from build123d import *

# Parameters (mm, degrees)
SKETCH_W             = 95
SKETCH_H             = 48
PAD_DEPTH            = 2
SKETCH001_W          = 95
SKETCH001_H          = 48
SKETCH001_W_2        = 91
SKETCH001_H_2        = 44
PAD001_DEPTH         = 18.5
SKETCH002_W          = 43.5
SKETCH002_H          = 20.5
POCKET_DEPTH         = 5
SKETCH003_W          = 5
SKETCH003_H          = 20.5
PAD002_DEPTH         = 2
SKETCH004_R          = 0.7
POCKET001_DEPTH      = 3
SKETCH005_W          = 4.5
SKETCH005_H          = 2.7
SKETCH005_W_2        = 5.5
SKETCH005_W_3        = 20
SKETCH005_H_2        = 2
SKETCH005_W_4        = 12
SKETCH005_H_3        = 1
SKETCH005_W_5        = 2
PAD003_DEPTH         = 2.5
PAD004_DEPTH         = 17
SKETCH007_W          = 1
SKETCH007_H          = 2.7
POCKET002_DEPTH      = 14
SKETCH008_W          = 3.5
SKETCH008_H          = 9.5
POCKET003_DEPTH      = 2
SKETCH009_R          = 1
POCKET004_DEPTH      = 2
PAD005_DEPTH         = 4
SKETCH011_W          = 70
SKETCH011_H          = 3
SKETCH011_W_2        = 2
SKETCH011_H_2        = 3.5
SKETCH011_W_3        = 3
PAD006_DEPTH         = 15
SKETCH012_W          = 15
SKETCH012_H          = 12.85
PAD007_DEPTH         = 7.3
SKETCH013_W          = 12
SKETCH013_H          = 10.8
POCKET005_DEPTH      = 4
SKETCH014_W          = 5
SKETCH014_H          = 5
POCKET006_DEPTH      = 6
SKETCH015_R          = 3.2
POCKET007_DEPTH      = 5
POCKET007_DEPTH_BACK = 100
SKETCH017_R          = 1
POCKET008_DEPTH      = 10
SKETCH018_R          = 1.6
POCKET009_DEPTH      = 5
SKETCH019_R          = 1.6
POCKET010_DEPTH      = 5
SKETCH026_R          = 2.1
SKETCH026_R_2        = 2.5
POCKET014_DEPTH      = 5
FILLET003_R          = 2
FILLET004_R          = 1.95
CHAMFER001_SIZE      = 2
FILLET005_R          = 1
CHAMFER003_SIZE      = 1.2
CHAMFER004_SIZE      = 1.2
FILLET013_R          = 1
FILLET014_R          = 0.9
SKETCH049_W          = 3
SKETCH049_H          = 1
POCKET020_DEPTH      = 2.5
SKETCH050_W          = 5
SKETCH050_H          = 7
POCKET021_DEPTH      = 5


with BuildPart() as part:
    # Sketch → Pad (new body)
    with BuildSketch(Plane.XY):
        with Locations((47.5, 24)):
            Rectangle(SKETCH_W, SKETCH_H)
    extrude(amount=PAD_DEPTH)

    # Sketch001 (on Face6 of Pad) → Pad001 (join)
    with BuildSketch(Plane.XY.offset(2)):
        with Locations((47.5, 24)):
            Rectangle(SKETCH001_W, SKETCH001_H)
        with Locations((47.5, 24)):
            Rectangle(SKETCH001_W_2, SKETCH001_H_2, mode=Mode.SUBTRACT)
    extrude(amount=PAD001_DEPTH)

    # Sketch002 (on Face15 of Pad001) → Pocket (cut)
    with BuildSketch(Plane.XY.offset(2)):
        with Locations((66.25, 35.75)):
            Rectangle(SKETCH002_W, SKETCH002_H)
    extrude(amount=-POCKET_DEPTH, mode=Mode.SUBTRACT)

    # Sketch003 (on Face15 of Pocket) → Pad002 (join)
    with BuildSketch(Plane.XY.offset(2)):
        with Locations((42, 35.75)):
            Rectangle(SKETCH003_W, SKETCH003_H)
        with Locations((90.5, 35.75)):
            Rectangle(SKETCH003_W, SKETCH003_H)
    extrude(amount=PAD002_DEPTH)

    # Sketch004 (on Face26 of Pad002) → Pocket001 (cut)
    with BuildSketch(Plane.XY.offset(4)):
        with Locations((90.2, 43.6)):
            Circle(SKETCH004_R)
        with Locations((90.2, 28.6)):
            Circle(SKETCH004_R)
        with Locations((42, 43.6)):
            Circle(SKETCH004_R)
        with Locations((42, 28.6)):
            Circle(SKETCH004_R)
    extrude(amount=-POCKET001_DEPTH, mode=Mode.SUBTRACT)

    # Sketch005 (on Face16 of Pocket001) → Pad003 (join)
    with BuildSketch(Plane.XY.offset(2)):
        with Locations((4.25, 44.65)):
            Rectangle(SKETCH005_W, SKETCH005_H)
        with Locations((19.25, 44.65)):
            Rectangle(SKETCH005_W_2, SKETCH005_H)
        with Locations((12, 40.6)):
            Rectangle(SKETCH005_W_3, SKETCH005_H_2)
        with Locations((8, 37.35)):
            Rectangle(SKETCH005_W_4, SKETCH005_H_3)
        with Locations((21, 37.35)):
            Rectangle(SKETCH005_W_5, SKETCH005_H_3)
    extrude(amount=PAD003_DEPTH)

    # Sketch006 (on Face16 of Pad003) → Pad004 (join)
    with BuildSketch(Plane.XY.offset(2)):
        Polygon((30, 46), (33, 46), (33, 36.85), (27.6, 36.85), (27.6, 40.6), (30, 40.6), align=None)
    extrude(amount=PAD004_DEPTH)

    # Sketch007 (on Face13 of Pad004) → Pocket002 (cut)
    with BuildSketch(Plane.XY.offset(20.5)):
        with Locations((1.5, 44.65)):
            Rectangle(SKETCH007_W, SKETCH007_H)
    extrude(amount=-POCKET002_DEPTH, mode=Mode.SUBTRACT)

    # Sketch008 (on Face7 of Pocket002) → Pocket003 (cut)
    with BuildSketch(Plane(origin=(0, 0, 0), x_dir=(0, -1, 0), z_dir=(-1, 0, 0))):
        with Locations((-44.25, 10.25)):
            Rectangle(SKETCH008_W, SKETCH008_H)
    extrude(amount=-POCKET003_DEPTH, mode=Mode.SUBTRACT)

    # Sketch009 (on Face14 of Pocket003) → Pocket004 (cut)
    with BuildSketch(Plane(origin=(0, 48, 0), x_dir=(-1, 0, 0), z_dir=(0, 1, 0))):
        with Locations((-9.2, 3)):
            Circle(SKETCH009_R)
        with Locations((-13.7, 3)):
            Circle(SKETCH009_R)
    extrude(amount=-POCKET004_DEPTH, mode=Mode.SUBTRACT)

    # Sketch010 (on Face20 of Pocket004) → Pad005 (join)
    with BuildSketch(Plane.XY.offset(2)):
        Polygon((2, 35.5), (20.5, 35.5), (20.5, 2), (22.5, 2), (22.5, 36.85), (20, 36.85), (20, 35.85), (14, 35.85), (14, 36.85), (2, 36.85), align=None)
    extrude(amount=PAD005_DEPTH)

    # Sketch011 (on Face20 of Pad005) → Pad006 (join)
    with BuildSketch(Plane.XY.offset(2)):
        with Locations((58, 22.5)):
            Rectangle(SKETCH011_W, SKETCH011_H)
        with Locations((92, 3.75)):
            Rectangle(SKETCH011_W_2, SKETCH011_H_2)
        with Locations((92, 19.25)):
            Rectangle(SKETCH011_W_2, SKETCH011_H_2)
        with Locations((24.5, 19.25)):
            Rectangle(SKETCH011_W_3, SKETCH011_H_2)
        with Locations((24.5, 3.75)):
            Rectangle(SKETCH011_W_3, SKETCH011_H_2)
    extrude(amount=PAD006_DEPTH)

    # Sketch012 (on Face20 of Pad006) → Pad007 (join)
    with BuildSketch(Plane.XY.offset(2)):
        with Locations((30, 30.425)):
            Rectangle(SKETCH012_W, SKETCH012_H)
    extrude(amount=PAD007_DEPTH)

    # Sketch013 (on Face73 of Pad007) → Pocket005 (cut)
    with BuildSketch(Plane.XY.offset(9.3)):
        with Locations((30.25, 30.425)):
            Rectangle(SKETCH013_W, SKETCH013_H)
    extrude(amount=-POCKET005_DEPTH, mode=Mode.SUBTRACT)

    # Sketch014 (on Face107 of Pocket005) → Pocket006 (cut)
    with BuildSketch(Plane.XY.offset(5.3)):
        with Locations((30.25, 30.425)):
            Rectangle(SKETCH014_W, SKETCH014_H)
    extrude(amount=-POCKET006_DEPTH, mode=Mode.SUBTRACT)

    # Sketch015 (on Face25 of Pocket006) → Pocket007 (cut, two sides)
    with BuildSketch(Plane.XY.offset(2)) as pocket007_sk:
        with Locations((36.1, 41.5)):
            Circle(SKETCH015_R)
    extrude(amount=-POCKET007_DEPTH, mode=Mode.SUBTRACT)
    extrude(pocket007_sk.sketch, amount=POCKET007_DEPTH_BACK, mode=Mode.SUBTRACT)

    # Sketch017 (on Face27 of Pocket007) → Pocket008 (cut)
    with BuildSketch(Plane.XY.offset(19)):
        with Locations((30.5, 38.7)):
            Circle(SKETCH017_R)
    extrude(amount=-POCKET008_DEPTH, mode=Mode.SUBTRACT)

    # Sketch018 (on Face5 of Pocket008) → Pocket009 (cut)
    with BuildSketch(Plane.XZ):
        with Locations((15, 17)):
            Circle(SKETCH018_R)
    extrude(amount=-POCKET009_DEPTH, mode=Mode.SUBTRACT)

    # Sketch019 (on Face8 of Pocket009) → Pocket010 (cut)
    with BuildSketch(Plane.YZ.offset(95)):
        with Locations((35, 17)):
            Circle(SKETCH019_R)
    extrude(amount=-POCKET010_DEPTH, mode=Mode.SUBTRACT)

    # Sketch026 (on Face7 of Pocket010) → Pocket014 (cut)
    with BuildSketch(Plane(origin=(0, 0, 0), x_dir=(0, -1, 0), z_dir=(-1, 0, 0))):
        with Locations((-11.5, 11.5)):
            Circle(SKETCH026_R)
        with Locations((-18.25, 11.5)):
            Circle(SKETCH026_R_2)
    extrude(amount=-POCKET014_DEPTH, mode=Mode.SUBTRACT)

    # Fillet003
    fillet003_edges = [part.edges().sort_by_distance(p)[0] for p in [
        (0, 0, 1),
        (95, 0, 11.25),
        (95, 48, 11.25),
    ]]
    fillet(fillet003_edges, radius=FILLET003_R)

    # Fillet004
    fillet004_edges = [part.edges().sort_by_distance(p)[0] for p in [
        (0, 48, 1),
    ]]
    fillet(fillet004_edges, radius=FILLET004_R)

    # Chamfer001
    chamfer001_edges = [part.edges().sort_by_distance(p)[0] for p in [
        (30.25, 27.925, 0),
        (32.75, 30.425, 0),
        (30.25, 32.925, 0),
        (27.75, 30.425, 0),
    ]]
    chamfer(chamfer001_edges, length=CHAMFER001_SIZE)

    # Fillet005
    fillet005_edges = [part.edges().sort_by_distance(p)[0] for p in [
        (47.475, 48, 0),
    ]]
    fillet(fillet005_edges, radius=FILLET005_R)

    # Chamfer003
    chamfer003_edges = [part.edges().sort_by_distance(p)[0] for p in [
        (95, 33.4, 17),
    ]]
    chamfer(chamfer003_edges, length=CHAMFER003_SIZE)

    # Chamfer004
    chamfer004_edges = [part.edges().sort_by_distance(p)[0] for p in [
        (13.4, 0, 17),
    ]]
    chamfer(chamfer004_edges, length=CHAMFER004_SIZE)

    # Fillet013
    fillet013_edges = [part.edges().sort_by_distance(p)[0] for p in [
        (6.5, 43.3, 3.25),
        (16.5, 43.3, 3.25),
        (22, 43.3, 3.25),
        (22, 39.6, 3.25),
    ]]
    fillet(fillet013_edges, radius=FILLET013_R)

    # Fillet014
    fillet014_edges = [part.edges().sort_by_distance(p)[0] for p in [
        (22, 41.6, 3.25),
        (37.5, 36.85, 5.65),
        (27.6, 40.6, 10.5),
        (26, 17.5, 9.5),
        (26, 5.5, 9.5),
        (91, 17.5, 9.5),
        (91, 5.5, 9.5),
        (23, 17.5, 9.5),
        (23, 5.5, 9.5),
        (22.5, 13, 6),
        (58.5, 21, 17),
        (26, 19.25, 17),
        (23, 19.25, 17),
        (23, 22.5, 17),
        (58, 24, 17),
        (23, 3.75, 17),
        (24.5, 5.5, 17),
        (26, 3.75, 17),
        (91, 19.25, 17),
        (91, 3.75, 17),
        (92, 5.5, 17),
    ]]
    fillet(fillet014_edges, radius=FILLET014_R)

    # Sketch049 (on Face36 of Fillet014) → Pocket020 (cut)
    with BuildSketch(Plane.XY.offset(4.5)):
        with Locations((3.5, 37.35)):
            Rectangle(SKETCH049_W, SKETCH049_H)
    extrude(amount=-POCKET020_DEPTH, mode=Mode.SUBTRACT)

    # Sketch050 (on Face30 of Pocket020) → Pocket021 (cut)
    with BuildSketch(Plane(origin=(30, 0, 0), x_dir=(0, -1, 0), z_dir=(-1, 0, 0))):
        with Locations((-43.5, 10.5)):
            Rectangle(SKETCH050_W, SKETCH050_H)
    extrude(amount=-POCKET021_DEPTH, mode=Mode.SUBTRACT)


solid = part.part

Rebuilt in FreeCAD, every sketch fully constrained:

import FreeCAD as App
import Part
import Sketcher
from FreeCAD import Vector
Q = App.Units.Quantity


def edges_at(feature, points):
    """Names of the edges that pass closest to the given points."""
    edges = feature.Shape.Edges
    near = lambda p: min(range(len(edges)), key=lambda i: edges[i].distToShape(Part.Vertex(*p))[0])
    return sorted({f"Edge{near(p) + 1}" for p in points})

doc = App.newDocument("Part")
body = doc.addObject("PartDesign::Body", "Body")

# Sketch on XY plane
sketch1 = body.newObject("Sketcher::SketchObject", "Sketch")
sketch1.AttachmentSupport = (doc.getObject("XY_Plane"), [""])
sketch1.MapMode = "FlatFace"
sketch1.addGeometry([
    Part.LineSegment(Vector(0, 48, 0), Vector(0, 0, 0)),
    Part.LineSegment(Vector(0, 0, 0), Vector(95, 0, 0)),
    Part.LineSegment(Vector(95, 0, 0), Vector(95, 48, 0)),
    Part.LineSegment(Vector(95, 48, 0), Vector(0, 48, 0)),
], False)
sketch1.addConstraint([
    Sketcher.Constraint("Coincident", 0, 2, 1, 1),
    Sketcher.Constraint("Coincident", 1, 2, 2, 1),
    Sketcher.Constraint("Coincident", 2, 2, 3, 1),
    Sketcher.Constraint("Coincident", 3, 2, 0, 1),
    Sketcher.Constraint("Vertical", 0),
    Sketcher.Constraint("Horizontal", 1),
    Sketcher.Constraint("Vertical", 2),
    Sketcher.Constraint("Horizontal", 3),
    Sketcher.Constraint("Coincident", 0, 2, -1, 1),
    Sketcher.Constraint("DistanceX", 1, 1, 1, 2, Q("95 mm")),
    Sketcher.Constraint("DistanceY", 0, 2, 0, 1, Q("48 mm")),
])
pad1 = body.newObject("PartDesign::Pad", "Pad")
pad1.Profile = sketch1
pad1.Length = 2

# Sketch on XY plane
sketch2 = body.newObject("Sketcher::SketchObject", "Sketch001")
sketch2.AttachmentSupport = (doc.getObject("XY_Plane"), [""])
sketch2.MapMode = "FlatFace"
sketch2.AttachmentOffset = App.Placement(Vector(0, 0, 2), App.Rotation())
sketch2.addGeometry([
    Part.LineSegment(Vector(0, 48, 0), Vector(0, 0, 0)),  # 0
    Part.LineSegment(Vector(0, 0, 0), Vector(95, 0, 0)),  # 1
    Part.LineSegment(Vector(95, 0, 0), Vector(95, 48, 0)),  # 2
    Part.LineSegment(Vector(95, 48, 0), Vector(0, 48, 0)),  # 3
    Part.LineSegment(Vector(93, 2, 0), Vector(2, 2, 0)),  # 4
    Part.LineSegment(Vector(2, 2, 0), Vector(2, 46, 0)),  # 5
    Part.LineSegment(Vector(2, 46, 0), Vector(93, 46, 0)),  # 6
    Part.LineSegment(Vector(93, 46, 0), Vector(93, 2, 0)),  # 7
], False)
sketch2.addConstraint([
    Sketcher.Constraint("Coincident", 0, 2, 1, 1),
    Sketcher.Constraint("Coincident", 1, 2, 2, 1),
    Sketcher.Constraint("Coincident", 2, 2, 3, 1),
    Sketcher.Constraint("Coincident", 3, 2, 0, 1),
    Sketcher.Constraint("Coincident", 4, 2, 5, 1),
    Sketcher.Constraint("Coincident", 5, 2, 6, 1),
    Sketcher.Constraint("Coincident", 6, 2, 7, 1),
    Sketcher.Constraint("Coincident", 7, 2, 4, 1),
    Sketcher.Constraint("Vertical", 0),
    Sketcher.Constraint("Horizontal", 1),
    Sketcher.Constraint("Vertical", 2),
    Sketcher.Constraint("Horizontal", 3),
    Sketcher.Constraint("Horizontal", 4),
    Sketcher.Constraint("Vertical", 5),
    Sketcher.Constraint("Horizontal", 6),
    Sketcher.Constraint("Vertical", 7),
    Sketcher.Constraint("Coincident", 0, 2, -1, 1),
    Sketcher.Constraint("DistanceX", 1, 1, 1, 2, Q("95 mm")),
    Sketcher.Constraint("DistanceX", 4, 2, 4, 1, Q("91 mm")),
    Sketcher.Constraint("DistanceY", 0, 2, 0, 1, Q("48 mm")),
    Sketcher.Constraint("DistanceY", 5, 1, 5, 2, Q("44 mm")),
    Sketcher.Constraint("DistanceX", -1, 1, 4, 2, Q("2 mm")),
    Sketcher.Constraint("DistanceY", -1, 1, 4, 2, Q("2 mm")),
])
pad2 = body.newObject("PartDesign::Pad", "Pad001")
pad2.Profile = sketch2
pad2.Length = 18.5

# Sketch on XY plane
sketch3 = body.newObject("Sketcher::SketchObject", "Sketch002")
sketch3.AttachmentSupport = (doc.getObject("XY_Plane"), [""])
sketch3.MapMode = "FlatFace"
sketch3.AttachmentOffset = App.Placement(Vector(0, 0, 2), App.Rotation())
sketch3.addGeometry([
    Part.LineSegment(Vector(44.5, 46, 0), Vector(44.5, 25.5, 0)),
    Part.LineSegment(Vector(44.5, 25.5, 0), Vector(88, 25.5, 0)),
    Part.LineSegment(Vector(88, 25.5, 0), Vector(88, 46, 0)),
    Part.LineSegment(Vector(88, 46, 0), Vector(44.5, 46, 0)),
], False)
sketch3.addConstraint([
    Sketcher.Constraint("Coincident", 0, 2, 1, 1),
    Sketcher.Constraint("Coincident", 1, 2, 2, 1),
    Sketcher.Constraint("Coincident", 2, 2, 3, 1),
    Sketcher.Constraint("Coincident", 3, 2, 0, 1),
    Sketcher.Constraint("Vertical", 0),
    Sketcher.Constraint("Horizontal", 1),
    Sketcher.Constraint("Vertical", 2),
    Sketcher.Constraint("Horizontal", 3),
    Sketcher.Constraint("DistanceX", 1, 1, 1, 2, Q("43.5 mm")),
    Sketcher.Constraint("DistanceY", 0, 2, 0, 1, Q("20.5 mm")),
    Sketcher.Constraint("DistanceX", -1, 1, 1, 2, Q("88 mm")),
    Sketcher.Constraint("DistanceY", -1, 1, 2, 2, Q("46 mm")),
])
pocket1 = body.newObject("PartDesign::Pocket", "Pocket")
pocket1.Profile = sketch3
pocket1.Length = 5

# Sketch on XY plane
sketch4 = body.newObject("Sketcher::SketchObject", "Sketch003")
sketch4.AttachmentSupport = (doc.getObject("XY_Plane"), [""])
sketch4.MapMode = "FlatFace"
sketch4.AttachmentOffset = App.Placement(Vector(0, 0, 2), App.Rotation())
sketch4.addGeometry([
    Part.LineSegment(Vector(39.5, 46, 0), Vector(39.5, 25.5, 0)),  # 0
    Part.LineSegment(Vector(39.5, 25.5, 0), Vector(44.5, 25.5, 0)),  # 1
    Part.LineSegment(Vector(44.5, 25.5, 0), Vector(44.5, 46, 0)),  # 2
    Part.LineSegment(Vector(44.5, 46, 0), Vector(39.5, 46, 0)),  # 3
    Part.LineSegment(Vector(88, 46, 0), Vector(88, 25.5, 0)),  # 4
    Part.LineSegment(Vector(88, 25.5, 0), Vector(93, 25.5, 0)),  # 5
    Part.LineSegment(Vector(93, 25.5, 0), Vector(93, 46, 0)),  # 6
    Part.LineSegment(Vector(93, 46, 0), Vector(88, 46, 0)),  # 7
], False)
sketch4.addConstraint([
    Sketcher.Constraint("Coincident", 0, 2, 1, 1),
    Sketcher.Constraint("Coincident", 1, 2, 2, 1),
    Sketcher.Constraint("Coincident", 2, 2, 3, 1),
    Sketcher.Constraint("Coincident", 3, 2, 0, 1),
    Sketcher.Constraint("Coincident", 4, 2, 5, 1),
    Sketcher.Constraint("Coincident", 5, 2, 6, 1),
    Sketcher.Constraint("Coincident", 6, 2, 7, 1),
    Sketcher.Constraint("Coincident", 7, 2, 4, 1),
    Sketcher.Constraint("Vertical", 0),
    Sketcher.Constraint("Horizontal", 1),
    Sketcher.Constraint("Vertical", 2),
    Sketcher.Constraint("Horizontal", 3),
    Sketcher.Constraint("Vertical", 4),
    Sketcher.Constraint("Horizontal", 5),
    Sketcher.Constraint("Vertical", 6),
    Sketcher.Constraint("Horizontal", 7),
    Sketcher.Constraint("Horizontal", 1, 2, 4, 2),
    Sketcher.Constraint("Horizontal", 3, 2, 6, 2),
    Sketcher.Constraint("Equal", 3, 5),
    Sketcher.Constraint("DistanceX", 1, 1, 1, 2, Q("5 mm")),
    Sketcher.Constraint("DistanceY", 0, 2, 0, 1, Q("20.5 mm")),
    Sketcher.Constraint("DistanceY", -1, 1, 2, 2, Q("46 mm")),
    Sketcher.Constraint("DistanceX", -1, 1, 4, 2, Q("88 mm")),
    Sketcher.Constraint("DistanceX", -1, 1, 0, 2, Q("39.5 mm")),
])
pad3 = body.newObject("PartDesign::Pad", "Pad002")
pad3.Profile = sketch4
pad3.Length = 2

# Sketch on XY plane
sketch5 = body.newObject("Sketcher::SketchObject", "Sketch004")
sketch5.AttachmentSupport = (doc.getObject("XY_Plane"), [""])
sketch5.MapMode = "FlatFace"
sketch5.AttachmentOffset = App.Placement(Vector(0, 0, 4), App.Rotation())
sketch5.addGeometry([
    Part.Circle(Vector(90.2, 43.6, 0), Vector(0, 0, 1), 0.7),
    Part.Circle(Vector(90.2, 28.6, 0), Vector(0, 0, 1), 0.7),
    Part.Circle(Vector(42, 43.6, 0), Vector(0, 0, 1), 0.7),
    Part.Circle(Vector(42, 28.6, 0), Vector(0, 0, 1), 0.7),
], False)
sketch5.addConstraint([
    Sketcher.Constraint("Equal", 0, 1),
    Sketcher.Constraint("Equal", 1, 2),
    Sketcher.Constraint("Equal", 2, 3),
    Sketcher.Constraint("Horizontal", 0, 3, 2, 3),
    Sketcher.Constraint("Horizontal", 1, 3, 3, 3),
    Sketcher.Constraint("Vertical", 0, 3, 1, 3),
    Sketcher.Constraint("Vertical", 2, 3, 3, 3),
    Sketcher.Constraint("Diameter", 0, Q("1.4 mm")),
    Sketcher.Constraint("DistanceX", -1, 1, 2, 3, Q("42 mm")),
    Sketcher.Constraint("DistanceY", 1, 3, 0, 3, Q("15 mm")),
    Sketcher.Constraint("DistanceX", -1, 1, 0, 3, Q("90.2 mm")),
    Sketcher.Constraint("DistanceY", -1, 1, 0, 3, Q("43.6 mm")),
])
pocket2 = body.newObject("PartDesign::Pocket", "Pocket001")
pocket2.Profile = sketch5
pocket2.Length = 3

# Sketch on XY plane
sketch6 = body.newObject("Sketcher::SketchObject", "Sketch005")
sketch6.AttachmentSupport = (doc.getObject("XY_Plane"), [""])
sketch6.MapMode = "FlatFace"
sketch6.AttachmentOffset = App.Placement(Vector(0, 0, 2), App.Rotation())
sketch6.addGeometry([
    Part.LineSegment(Vector(2, 46, 0), Vector(2, 43.3, 0)),  # 0
    Part.LineSegment(Vector(2, 43.3, 0), Vector(6.5, 43.3, 0)),  # 1
    Part.LineSegment(Vector(6.5, 43.3, 0), Vector(6.5, 46, 0)),  # 2
    Part.LineSegment(Vector(6.5, 46, 0), Vector(2, 46, 0)),  # 3
    Part.LineSegment(Vector(16.5, 46, 0), Vector(16.5, 43.3, 0)),  # 4
    Part.LineSegment(Vector(16.5, 43.3, 0), Vector(22, 43.3, 0)),  # 5
    Part.LineSegment(Vector(22, 43.3, 0), Vector(22, 46, 0)),  # 6
    Part.LineSegment(Vector(22, 46, 0), Vector(16.5, 46, 0)),  # 7
    Part.LineSegment(Vector(2, 41.6, 0), Vector(2, 39.6, 0)),  # 8
    Part.LineSegment(Vector(2, 39.6, 0), Vector(22, 39.6, 0)),  # 9
    Part.LineSegment(Vector(22, 39.6, 0), Vector(22, 41.6, 0)),  # 10
    Part.LineSegment(Vector(22, 41.6, 0), Vector(2, 41.6, 0)),  # 11
    Part.LineSegment(Vector(2, 37.85, 0), Vector(2, 36.85, 0)),  # 12
    Part.LineSegment(Vector(2, 36.85, 0), Vector(14, 36.85, 0)),  # 13
    Part.LineSegment(Vector(14, 36.85, 0), Vector(14, 37.85, 0)),  # 14
    Part.LineSegment(Vector(14, 37.85, 0), Vector(2, 37.85, 0)),  # 15
    Part.LineSegment(Vector(20, 37.85, 0), Vector(20, 36.85, 0)),  # 16
    Part.LineSegment(Vector(20, 36.85, 0), Vector(22, 36.85, 0)),  # 17
    Part.LineSegment(Vector(22, 36.85, 0), Vector(22, 37.85, 0)),  # 18
    Part.LineSegment(Vector(22, 37.85, 0), Vector(20, 37.85, 0)),  # 19
], False)
sketch6.addConstraint([
    Sketcher.Constraint("Coincident", 0, 2, 1, 1),
    Sketcher.Constraint("Coincident", 1, 2, 2, 1),
    Sketcher.Constraint("Coincident", 2, 2, 3, 1),
    Sketcher.Constraint("Coincident", 3, 2, 0, 1),
    Sketcher.Constraint("Coincident", 4, 2, 5, 1),
    Sketcher.Constraint("Coincident", 5, 2, 6, 1),
    Sketcher.Constraint("Coincident", 6, 2, 7, 1),
    Sketcher.Constraint("Coincident", 7, 2, 4, 1),
    Sketcher.Constraint("Coincident", 8, 2, 9, 1),
    Sketcher.Constraint("Coincident", 9, 2, 10, 1),
    Sketcher.Constraint("Coincident", 10, 2, 11, 1),
    Sketcher.Constraint("Coincident", 11, 2, 8, 1),
    Sketcher.Constraint("Coincident", 12, 2, 13, 1),
    Sketcher.Constraint("Coincident", 13, 2, 14, 1),
    Sketcher.Constraint("Coincident", 14, 2, 15, 1),
    Sketcher.Constraint("Coincident", 15, 2, 12, 1),
    Sketcher.Constraint("Coincident", 16, 2, 17, 1),
    Sketcher.Constraint("Coincident", 17, 2, 18, 1),
    Sketcher.Constraint("Coincident", 18, 2, 19, 1),
    Sketcher.Constraint("Coincident", 19, 2, 16, 1),
    Sketcher.Constraint("Vertical", 0),
    Sketcher.Constraint("Horizontal", 1),
    Sketcher.Constraint("Vertical", 2),
    Sketcher.Constraint("Horizontal", 3),
    Sketcher.Constraint("Vertical", 4),
    Sketcher.Constraint("Horizontal", 5),
    Sketcher.Constraint("Vertical", 6),
    Sketcher.Constraint("Horizontal", 7),
    Sketcher.Constraint("Vertical", 8),
    Sketcher.Constraint("Horizontal", 9),
    Sketcher.Constraint("Vertical", 10),
    Sketcher.Constraint("Horizontal", 11),
    Sketcher.Constraint("Vertical", 12),
    Sketcher.Constraint("Horizontal", 13),
    Sketcher.Constraint("Vertical", 14),
    Sketcher.Constraint("Horizontal", 15),
    Sketcher.Constraint("Vertical", 16),
    Sketcher.Constraint("Horizontal", 17),
    Sketcher.Constraint("Vertical", 18),
    Sketcher.Constraint("Horizontal", 19),
    Sketcher.Constraint("Horizontal", 1, 2, 4, 2),
    Sketcher.Constraint("Horizontal", 3, 2, 6, 2),
    Sketcher.Constraint("Horizontal", 13, 2, 16, 2),
    Sketcher.Constraint("Horizontal", 15, 2, 18, 2),
    Sketcher.Constraint("Vertical", 3, 2, 8, 2),
    Sketcher.Constraint("Vertical", 6, 2, 9, 2),
    Sketcher.Constraint("Vertical", 11, 2, 12, 2),
    Sketcher.Constraint("Vertical", 10, 2, 17, 2),
    Sketcher.Constraint("Equal", 19, 8),
    Sketcher.Constraint("DistanceX", 9, 1, 9, 2, Q("20 mm")),
    Sketcher.Constraint("DistanceX", 13, 1, 13, 2, Q("12 mm")),
    Sketcher.Constraint("DistanceX", 17, 1, 17, 2, Q("2 mm")),
    Sketcher.Constraint("DistanceY", 12, 2, 12, 1, Q("1 mm")),
    Sketcher.Constraint("DistanceX", 1, 1, 1, 2, Q("4.5 mm")),
    Sketcher.Constraint("DistanceX", 5, 1, 5, 2, Q("5.5 mm")),
    Sketcher.Constraint("DistanceY", 0, 2, 0, 1, Q("2.7 mm")),
    Sketcher.Constraint("DistanceX", -1, 1, 0, 2, Q("2 mm")),
    Sketcher.Constraint("DistanceY", -1, 1, 2, 2, Q("46 mm")),
    Sketcher.Constraint("DistanceY", -1, 1, 8, 2, Q("39.6 mm")),
    Sketcher.Constraint("DistanceY", -1, 1, 12, 2, Q("36.85 mm")),
])
pad4 = body.newObject("PartDesign::Pad", "Pad003")
pad4.Profile = sketch6
pad4.Length = 2.5

# Sketch on XY plane
sketch7 = body.newObject("Sketcher::SketchObject", "Sketch006")
sketch7.AttachmentSupport = (doc.getObject("XY_Plane"), [""])
sketch7.MapMode = "FlatFace"
sketch7.AttachmentOffset = App.Placement(Vector(0, 0, 2), App.Rotation())
sketch7.addGeometry([
    Part.LineSegment(Vector(33, 46, 0), Vector(30, 46, 0)),  # 0
    Part.LineSegment(Vector(30, 46, 0), Vector(30, 40.6, 0)),  # 1
    Part.LineSegment(Vector(30, 40.6, 0), Vector(27.6, 40.6, 0)),  # 2
    Part.LineSegment(Vector(27.6, 40.6, 0), Vector(27.6, 36.85, 0)),  # 3
    Part.LineSegment(Vector(27.6, 36.85, 0), Vector(33, 36.85, 0)),  # 4
    Part.LineSegment(Vector(33, 36.85, 0), Vector(33, 46, 0)),  # 5
], False)
sketch7.addConstraint([
    Sketcher.Constraint("Coincident", 0, 2, 1, 1),
    Sketcher.Constraint("Coincident", 1, 2, 2, 1),
    Sketcher.Constraint("Coincident", 2, 2, 3, 1),
    Sketcher.Constraint("Coincident", 3, 2, 4, 1),
    Sketcher.Constraint("Coincident", 4, 2, 5, 1),
    Sketcher.Constraint("Coincident", 5, 2, 0, 1),
    Sketcher.Constraint("Horizontal", 0),
    Sketcher.Constraint("Vertical", 1),
    Sketcher.Constraint("Horizontal", 2),
    Sketcher.Constraint("Vertical", 3),
    Sketcher.Constraint("Horizontal", 4),
    Sketcher.Constraint("Vertical", 5),
    Sketcher.Constraint("Equal", 4, 1),
    Sketcher.Constraint("DistanceX", 0, 2, 0, 1, Q("3 mm")),
    Sketcher.Constraint("DistanceX", 2, 2, 2, 1, Q("2.4 mm")),
    Sketcher.Constraint("DistanceX", -1, 1, 0, 2, Q("30 mm")),
    Sketcher.Constraint("DistanceY", -1, 1, 0, 2, Q("46 mm")),
    Sketcher.Constraint("DistanceY", 3, 2, 3, 1, Q("3.75 mm")),
])
pad5 = body.newObject("PartDesign::Pad", "Pad004")
pad5.Profile = sketch7
pad5.Length = 17

# Sketch on XY plane
sketch8 = body.newObject("Sketcher::SketchObject", "Sketch007")
sketch8.AttachmentSupport = (doc.getObject("XY_Plane"), [""])
sketch8.MapMode = "FlatFace"
sketch8.AttachmentOffset = App.Placement(Vector(0, 0, 20.5), App.Rotation())
sketch8.addGeometry([
    Part.LineSegment(Vector(1, 46, 0), Vector(1, 43.3, 0)),
    Part.LineSegment(Vector(1, 43.3, 0), Vector(2, 43.3, 0)),
    Part.LineSegment(Vector(2, 43.3, 0), Vector(2, 46, 0)),
    Part.LineSegment(Vector(2, 46, 0), Vector(1, 46, 0)),
], False)
sketch8.addConstraint([
    Sketcher.Constraint("Coincident", 0, 2, 1, 1),
    Sketcher.Constraint("Coincident", 1, 2, 2, 1),
    Sketcher.Constraint("Coincident", 2, 2, 3, 1),
    Sketcher.Constraint("Coincident", 3, 2, 0, 1),
    Sketcher.Constraint("Vertical", 0),
    Sketcher.Constraint("Horizontal", 1),
    Sketcher.Constraint("Vertical", 2),
    Sketcher.Constraint("Horizontal", 3),
    Sketcher.Constraint("DistanceX", 1, 1, 1, 2, Q("1 mm")),
    Sketcher.Constraint("DistanceY", 0, 2, 0, 1, Q("2.7 mm")),
    Sketcher.Constraint("DistanceX", -1, 1, 0, 2, Q("1 mm")),
    Sketcher.Constraint("DistanceY", -1, 1, 2, 2, Q("46 mm")),
])
pocket3 = body.newObject("PartDesign::Pocket", "Pocket002")
pocket3.Profile = sketch8
pocket3.Length = 14

# Sketch on YZ plane
sketch9 = body.newObject("Sketcher::SketchObject", "Sketch008")
sketch9.AttachmentSupport = (doc.getObject("YZ_Plane"), [""])
sketch9.MapMode = "FlatFace"
sketch9.addGeometry([
    Part.LineSegment(Vector(46, 15, 0), Vector(46, 5.5, 0)),
    Part.LineSegment(Vector(46, 5.5, 0), Vector(42.5, 5.5, 0)),
    Part.LineSegment(Vector(42.5, 5.5, 0), Vector(42.5, 15, 0)),
    Part.LineSegment(Vector(42.5, 15, 0), Vector(46, 15, 0)),
], False)
sketch9.addConstraint([
    Sketcher.Constraint("Coincident", 0, 2, 1, 1),
    Sketcher.Constraint("Coincident", 1, 2, 2, 1),
    Sketcher.Constraint("Coincident", 2, 2, 3, 1),
    Sketcher.Constraint("Coincident", 3, 2, 0, 1),
    Sketcher.Constraint("Vertical", 0),
    Sketcher.Constraint("Horizontal", 1),
    Sketcher.Constraint("Vertical", 2),
    Sketcher.Constraint("Horizontal", 3),
    Sketcher.Constraint("DistanceX", 1, 2, 1, 1, Q("3.5 mm")),
    Sketcher.Constraint("DistanceY", 0, 2, 0, 1, Q("9.5 mm")),
    Sketcher.Constraint("DistanceX", -1, 1, 0, 2, Q("46 mm")),
    Sketcher.Constraint("DistanceY", -1, 1, 2, 2, Q("15 mm")),
])
pocket4 = body.newObject("PartDesign::Pocket", "Pocket003")
pocket4.Profile = sketch9
pocket4.Length = 2
pocket4.Reversed = True

# Sketch on XZ plane
sketch10 = body.newObject("Sketcher::SketchObject", "Sketch009")
sketch10.AttachmentSupport = (doc.getObject("XZ_Plane"), [""])
sketch10.MapMode = "FlatFace"
sketch10.AttachmentOffset = App.Placement(Vector(0, 0, -48), App.Rotation())
sketch10.addGeometry([
    Part.Circle(Vector(9.2, 3, 0), Vector(0, 0, 1), 1),
    Part.Circle(Vector(13.7, 3, 0), Vector(0, 0, 1), 1),
], False)
sketch10.addConstraint([
    Sketcher.Constraint("Equal", 0, 1),
    Sketcher.Constraint("Horizontal", 0, 3, 1, 3),
    Sketcher.Constraint("Diameter", 0, Q("2 mm")),
    Sketcher.Constraint("DistanceY", -1, 1, 0, 3, Q("3 mm")),
    Sketcher.Constraint("DistanceX", -1, 1, 0, 3, Q("9.2 mm")),
    Sketcher.Constraint("DistanceX", -1, 1, 1, 3, Q("13.7 mm")),
])
pocket5 = body.newObject("PartDesign::Pocket", "Pocket004")
pocket5.Profile = sketch10
pocket5.Length = 2
pocket5.Reversed = True

# Sketch on XY plane
sketch11 = body.newObject("Sketcher::SketchObject", "Sketch010")
sketch11.AttachmentSupport = (doc.getObject("XY_Plane"), [""])
sketch11.MapMode = "FlatFace"
sketch11.AttachmentOffset = App.Placement(Vector(0, 0, 2), App.Rotation())
sketch11.addGeometry([
    Part.LineSegment(Vector(2, 35.5, 0), Vector(20.5, 35.5, 0)),  # 0
    Part.LineSegment(Vector(20.5, 35.5, 0), Vector(20.5, 2, 0)),  # 1
    Part.LineSegment(Vector(20.5, 2, 0), Vector(22.5, 2, 0)),  # 2
    Part.LineSegment(Vector(22.5, 2, 0), Vector(22.5, 36.85, 0)),  # 3
    Part.LineSegment(Vector(22.5, 36.85, 0), Vector(20, 36.85, 0)),  # 4
    Part.LineSegment(Vector(20, 36.85, 0), Vector(20, 35.85, 0)),  # 5
    Part.LineSegment(Vector(20, 35.85, 0), Vector(14, 35.85, 0)),  # 6
    Part.LineSegment(Vector(14, 35.85, 0), Vector(14, 36.85, 0)),  # 7
    Part.LineSegment(Vector(14, 36.85, 0), Vector(2, 36.85, 0)),  # 8
    Part.LineSegment(Vector(2, 36.85, 0), Vector(2, 35.5, 0)),  # 9
], False)
sketch11.addConstraint([
    Sketcher.Constraint("Coincident", 0, 2, 1, 1),
    Sketcher.Constraint("Coincident", 1, 2, 2, 1),
    Sketcher.Constraint("Coincident", 2, 2, 3, 1),
    Sketcher.Constraint("Coincident", 3, 2, 4, 1),
    Sketcher.Constraint("Coincident", 4, 2, 5, 1),
    Sketcher.Constraint("Coincident", 5, 2, 6, 1),
    Sketcher.Constraint("Coincident", 6, 2, 7, 1),
    Sketcher.Constraint("Coincident", 7, 2, 8, 1),
    Sketcher.Constraint("Coincident", 8, 2, 9, 1),
    Sketcher.Constraint("Coincident", 9, 2, 0, 1),
    Sketcher.Constraint("Horizontal", 0),
    Sketcher.Constraint("Vertical", 1),
    Sketcher.Constraint("Horizontal", 2),
    Sketcher.Constraint("Vertical", 3),
    Sketcher.Constraint("Horizontal", 4),
    Sketcher.Constraint("Vertical", 5),
    Sketcher.Constraint("Horizontal", 6),
    Sketcher.Constraint("Vertical", 7),
    Sketcher.Constraint("Horizontal", 8),
    Sketcher.Constraint("Vertical", 9),
    Sketcher.Constraint("Horizontal", 4, 2, 7, 2),
    Sketcher.Constraint("DistanceX", 2, 1, 2, 2, Q("2 mm")),
    Sketcher.Constraint("DistanceX", 6, 2, 6, 1, Q("6 mm")),
    Sketcher.Constraint("DistanceX", 8, 2, 8, 1, Q("12 mm")),
    Sketcher.Constraint("DistanceY", 5, 2, 5, 1, Q("1 mm")),
    Sketcher.Constraint("DistanceX", 0, 1, 0, 2, Q("18.5 mm")),
    Sketcher.Constraint("DistanceY", 1, 2, 1, 1, Q("33.5 mm")),
    Sketcher.Constraint("DistanceY", -1, 1, 1, 2, Q("2 mm")),
    Sketcher.Constraint("DistanceX", -1, 1, 4, 2, Q("20 mm")),
    Sketcher.Constraint("DistanceY", 3, 1, 3, 2, Q("34.85 mm")),
])
pad6 = body.newObject("PartDesign::Pad", "Pad005")
pad6.Profile = sketch11
pad6.Length = 4

# Sketch on XY plane
sketch12 = body.newObject("Sketcher::SketchObject", "Sketch011")
sketch12.AttachmentSupport = (doc.getObject("XY_Plane"), [""])
sketch12.MapMode = "FlatFace"
sketch12.AttachmentOffset = App.Placement(Vector(0, 0, 2), App.Rotation())
sketch12.addGeometry([
    Part.LineSegment(Vector(23, 24, 0), Vector(23, 17.5, 0)),  # 0
    Part.LineSegment(Vector(23, 17.5, 0), Vector(26, 17.5, 0)),  # 1
    Part.LineSegment(Vector(26, 17.5, 0), Vector(26, 21, 0)),  # 2
    Part.LineSegment(Vector(26, 21, 0), Vector(91, 21, 0)),  # 3
    Part.LineSegment(Vector(91, 21, 0), Vector(91, 17.5, 0)),  # 4
    Part.LineSegment(Vector(91, 17.5, 0), Vector(93, 17.5, 0)),  # 5
    Part.LineSegment(Vector(93, 17.5, 0), Vector(93, 24, 0)),  # 6
    Part.LineSegment(Vector(93, 24, 0), Vector(23, 24, 0)),  # 7
    Part.LineSegment(Vector(91, 5.5, 0), Vector(91, 2, 0)),  # 8
    Part.LineSegment(Vector(91, 2, 0), Vector(93, 2, 0)),  # 9
    Part.LineSegment(Vector(93, 2, 0), Vector(93, 5.5, 0)),  # 10
    Part.LineSegment(Vector(93, 5.5, 0), Vector(91, 5.5, 0)),  # 11
    Part.LineSegment(Vector(23, 5.5, 0), Vector(23, 2, 0)),  # 12
    Part.LineSegment(Vector(23, 2, 0), Vector(26, 2, 0)),  # 13
    Part.LineSegment(Vector(26, 2, 0), Vector(26, 5.5, 0)),  # 14
    Part.LineSegment(Vector(26, 5.5, 0), Vector(23, 5.5, 0)),  # 15
], False)
sketch12.addConstraint([
    Sketcher.Constraint("Coincident", 0, 2, 1, 1),
    Sketcher.Constraint("Coincident", 1, 2, 2, 1),
    Sketcher.Constraint("Coincident", 2, 2, 3, 1),
    Sketcher.Constraint("Coincident", 3, 2, 4, 1),
    Sketcher.Constraint("Coincident", 4, 2, 5, 1),
    Sketcher.Constraint("Coincident", 5, 2, 6, 1),
    Sketcher.Constraint("Coincident", 6, 2, 7, 1),
    Sketcher.Constraint("Coincident", 7, 2, 0, 1),
    Sketcher.Constraint("Coincident", 8, 2, 9, 1),
    Sketcher.Constraint("Coincident", 9, 2, 10, 1),
    Sketcher.Constraint("Coincident", 10, 2, 11, 1),
    Sketcher.Constraint("Coincident", 11, 2, 8, 1),
    Sketcher.Constraint("Coincident", 12, 2, 13, 1),
    Sketcher.Constraint("Coincident", 13, 2, 14, 1),
    Sketcher.Constraint("Coincident", 14, 2, 15, 1),
    Sketcher.Constraint("Coincident", 15, 2, 12, 1),
    Sketcher.Constraint("Vertical", 0),
    Sketcher.Constraint("Horizontal", 1),
    Sketcher.Constraint("Vertical", 2),
    Sketcher.Constraint("Horizontal", 3),
    Sketcher.Constraint("Vertical", 4),
    Sketcher.Constraint("Horizontal", 5),
    Sketcher.Constraint("Vertical", 6),
    Sketcher.Constraint("Horizontal", 7),
    Sketcher.Constraint("Vertical", 8),
    Sketcher.Constraint("Horizontal", 9),
    Sketcher.Constraint("Vertical", 10),
    Sketcher.Constraint("Horizontal", 11),
    Sketcher.Constraint("Vertical", 12),
    Sketcher.Constraint("Horizontal", 13),
    Sketcher.Constraint("Vertical", 14),
    Sketcher.Constraint("Horizontal", 15),
    Sketcher.Constraint("Horizontal", 1, 2, 4, 2),
    Sketcher.Constraint("Horizontal", 9, 2, 12, 2),
    Sketcher.Constraint("Horizontal", 11, 2, 14, 2),
    Sketcher.Constraint("Vertical", 4, 2, 8, 2),
    Sketcher.Constraint("Vertical", 6, 2, 9, 2),
    Sketcher.Constraint("Vertical", 7, 2, 12, 2),
    Sketcher.Constraint("Vertical", 2, 2, 13, 2),
    Sketcher.Constraint("Equal", 4, 8),
    Sketcher.Constraint("DistanceX", 1, 1, 1, 2, Q("3 mm")),
    Sketcher.Constraint("DistanceX", 3, 1, 3, 2, Q("65 mm")),
    Sketcher.Constraint("DistanceX", 5, 1, 5, 2, Q("2 mm")),
    Sketcher.Constraint("DistanceY", 0, 2, 0, 1, Q("6.5 mm")),
    Sketcher.Constraint("DistanceY", 2, 1, 2, 2, Q("3.5 mm")),
    Sketcher.Constraint("DistanceX", -1, 1, 0, 2, Q("23 mm")),
    Sketcher.Constraint("DistanceY", -1, 1, 2, 2, Q("21 mm")),
    Sketcher.Constraint("DistanceY", -1, 1, 8, 2, Q("2 mm")),
])
pad7 = body.newObject("PartDesign::Pad", "Pad006")
pad7.Profile = sketch12
pad7.Length = 15

# Sketch on XY plane
sketch13 = body.newObject("Sketcher::SketchObject", "Sketch012")
sketch13.AttachmentSupport = (doc.getObject("XY_Plane"), [""])
sketch13.MapMode = "FlatFace"
sketch13.AttachmentOffset = App.Placement(Vector(0, 0, 2), App.Rotation())
sketch13.addGeometry([
    Part.LineSegment(Vector(22.5, 36.85, 0), Vector(22.5, 24, 0)),
    Part.LineSegment(Vector(22.5, 24, 0), Vector(37.5, 24, 0)),
    Part.LineSegment(Vector(37.5, 24, 0), Vector(37.5, 36.85, 0)),
    Part.LineSegment(Vector(37.5, 36.85, 0), Vector(22.5, 36.85, 0)),
], False)
sketch13.addConstraint([
    Sketcher.Constraint("Coincident", 0, 2, 1, 1),
    Sketcher.Constraint("Coincident", 1, 2, 2, 1),
    Sketcher.Constraint("Coincident", 2, 2, 3, 1),
    Sketcher.Constraint("Coincident", 3, 2, 0, 1),
    Sketcher.Constraint("Vertical", 0),
    Sketcher.Constraint("Horizontal", 1),
    Sketcher.Constraint("Vertical", 2),
    Sketcher.Constraint("Horizontal", 3),
    Sketcher.Constraint("DistanceX", 1, 1, 1, 2, Q("15 mm")),
    Sketcher.Constraint("DistanceY", -1, 1, 0, 2, Q("24 mm")),
    Sketcher.Constraint("DistanceY", 0, 2, 0, 1, Q("12.85 mm")),
    Sketcher.Constraint("DistanceX", -1, 1, 0, 2, Q("22.5 mm")),
])
pad8 = body.newObject("PartDesign::Pad", "Pad007")
pad8.Profile = sketch13
pad8.Length = 7.3

# Sketch on XY plane
sketch14 = body.newObject("Sketcher::SketchObject", "Sketch013")
sketch14.AttachmentSupport = (doc.getObject("XY_Plane"), [""])
sketch14.MapMode = "FlatFace"
sketch14.AttachmentOffset = App.Placement(Vector(0, 0, 9.3), App.Rotation())
sketch14.addGeometry([
    Part.LineSegment(Vector(24.25, 35.825, 0), Vector(24.25, 25.025, 0)),
    Part.LineSegment(Vector(24.25, 25.025, 0), Vector(36.25, 25.025, 0)),
    Part.LineSegment(Vector(36.25, 25.025, 0), Vector(36.25, 35.825, 0)),
    Part.LineSegment(Vector(36.25, 35.825, 0), Vector(24.25, 35.825, 0)),
], False)
sketch14.addConstraint([
    Sketcher.Constraint("Coincident", 0, 2, 1, 1),
    Sketcher.Constraint("Coincident", 1, 2, 2, 1),
    Sketcher.Constraint("Coincident", 2, 2, 3, 1),
    Sketcher.Constraint("Coincident", 3, 2, 0, 1),
    Sketcher.Constraint("Vertical", 0),
    Sketcher.Constraint("Horizontal", 1),
    Sketcher.Constraint("Vertical", 2),
    Sketcher.Constraint("Horizontal", 3),
    Sketcher.Constraint("DistanceX", 1, 1, 1, 2, Q("12 mm")),
    Sketcher.Constraint("DistanceY", 0, 2, 0, 1, Q("10.8 mm")),
    Sketcher.Constraint("DistanceX", -1, 1, 0, 2, Q("24.25 mm")),
    Sketcher.Constraint("DistanceY", -1, 1, 0, 2, Q("25.025 mm")),
])
pocket6 = body.newObject("PartDesign::Pocket", "Pocket005")
pocket6.Profile = sketch14
pocket6.Length = 4

# Sketch on XY plane
sketch15 = body.newObject("Sketcher::SketchObject", "Sketch014")
sketch15.AttachmentSupport = (doc.getObject("XY_Plane"), [""])
sketch15.MapMode = "FlatFace"
sketch15.AttachmentOffset = App.Placement(Vector(0, 0, 5.3), App.Rotation())
sketch15.addGeometry([
    Part.LineSegment(Vector(27.75, 32.925, 0), Vector(27.75, 27.925, 0)),
    Part.LineSegment(Vector(27.75, 27.925, 0), Vector(32.75, 27.925, 0)),
    Part.LineSegment(Vector(32.75, 27.925, 0), Vector(32.75, 32.925, 0)),
    Part.LineSegment(Vector(32.75, 32.925, 0), Vector(27.75, 32.925, 0)),
], False)
sketch15.addConstraint([
    Sketcher.Constraint("Coincident", 0, 2, 1, 1),
    Sketcher.Constraint("Coincident", 1, 2, 2, 1),
    Sketcher.Constraint("Coincident", 2, 2, 3, 1),
    Sketcher.Constraint("Coincident", 3, 2, 0, 1),
    Sketcher.Constraint("Vertical", 0),
    Sketcher.Constraint("Horizontal", 1),
    Sketcher.Constraint("Vertical", 2),
    Sketcher.Constraint("Horizontal", 3),
    Sketcher.Constraint("Equal", 3, 0),
    Sketcher.Constraint("DistanceX", 1, 1, 1, 2, Q("5 mm")),
    Sketcher.Constraint("DistanceX", -1, 1, 0, 2, Q("27.75 mm")),
    Sketcher.Constraint("DistanceY", -1, 1, 0, 2, Q("27.925 mm")),
])
pocket7 = body.newObject("PartDesign::Pocket", "Pocket006")
pocket7.Profile = sketch15
pocket7.Length = 6

# Sketch on XY plane
sketch16 = body.newObject("Sketcher::SketchObject", "Sketch015")
sketch16.AttachmentSupport = (doc.getObject("XY_Plane"), [""])
sketch16.MapMode = "FlatFace"
sketch16.AttachmentOffset = App.Placement(Vector(0, 0, 2), App.Rotation())
sketch16.addGeometry(Part.Circle(Vector(36.1, 41.5, 0), Vector(0, 0, 1), 3.2), False)
sketch16.addConstraint([
    Sketcher.Constraint("Diameter", 0, Q("6.4 mm")),
    Sketcher.Constraint("DistanceX", -1, 1, 0, 3, Q("36.1 mm")),
    Sketcher.Constraint("DistanceY", -1, 1, 0, 3, Q("41.5 mm")),
])
pocket8 = body.newObject("PartDesign::Pocket", "Pocket007")
pocket8.Profile = sketch16
pocket8.Type = "ThroughAll"
pocket8.Midplane = True

# Sketch on XY plane
sketch17 = body.newObject("Sketcher::SketchObject", "Sketch016")
sketch17.AttachmentSupport = (doc.getObject("XY_Plane"), [""])
sketch17.MapMode = "FlatFace"
sketch17.AttachmentOffset = App.Placement(Vector(0, 0, 19), App.Rotation())
sketch17.addGeometry(Part.Circle(Vector(30.5, 38.7, 0), Vector(0, 0, 1), 1), False)
sketch17.addConstraint([
    Sketcher.Constraint("Diameter", 0, Q("2 mm")),
    Sketcher.Constraint("DistanceX", -1, 1, 0, 3, Q("30.5 mm")),
    Sketcher.Constraint("DistanceY", -1, 1, 0, 3, Q("38.7 mm")),
])
pocket9 = body.newObject("PartDesign::Pocket", "Pocket008")
pocket9.Profile = sketch17
pocket9.Length = 10

# Sketch on XZ plane
sketch18 = body.newObject("Sketcher::SketchObject", "Sketch017")
sketch18.AttachmentSupport = (doc.getObject("XZ_Plane"), [""])
sketch18.MapMode = "FlatFace"
sketch18.addGeometry(Part.Circle(Vector(15, 17, 0), Vector(0, 0, 1), 1.6), False)
sketch18.addConstraint([
    Sketcher.Constraint("Diameter", 0, Q("3.2 mm")),
    Sketcher.Constraint("DistanceX", -1, 1, 0, 3, Q("15 mm")),
    Sketcher.Constraint("DistanceY", -1, 1, 0, 3, Q("17 mm")),
])
pocket10 = body.newObject("PartDesign::Pocket", "Pocket009")
pocket10.Profile = sketch18
pocket10.Length = 5

# Sketch on YZ plane
sketch19 = body.newObject("Sketcher::SketchObject", "Sketch018")
sketch19.AttachmentSupport = (doc.getObject("YZ_Plane"), [""])
sketch19.MapMode = "FlatFace"
sketch19.AttachmentOffset = App.Placement(Vector(0, 0, 95), App.Rotation())
sketch19.addGeometry(Part.Circle(Vector(35, 17, 0), Vector(0, 0, 1), 1.6), False)
sketch19.addConstraint([
    Sketcher.Constraint("Diameter", 0, Q("3.2 mm")),
    Sketcher.Constraint("DistanceX", -1, 1, 0, 3, Q("35 mm")),
    Sketcher.Constraint("DistanceY", -1, 1, 0, 3, Q("17 mm")),
])
pocket11 = body.newObject("PartDesign::Pocket", "Pocket010")
pocket11.Profile = sketch19
pocket11.Length = 5

# Sketch on YZ plane
sketch20 = body.newObject("Sketcher::SketchObject", "Sketch019")
sketch20.AttachmentSupport = (doc.getObject("YZ_Plane"), [""])
sketch20.MapMode = "FlatFace"
sketch20.addGeometry([
    Part.Circle(Vector(11.5, 11.5, 0), Vector(0, 0, 1), 2.1),
    Part.Circle(Vector(18.25, 11.5, 0), Vector(0, 0, 1), 2.5),
], False)
sketch20.addConstraint([
    Sketcher.Constraint("Horizontal", 0, 3, 1, 3),
    Sketcher.Constraint("Diameter", 1, Q("5 mm")),
    Sketcher.Constraint("Diameter", 0, Q("4.2 mm")),
    Sketcher.Constraint("DistanceX", -1, 1, 0, 3, Q("11.5 mm")),
    Sketcher.Constraint("DistanceY", -1, 1, 0, 3, Q("11.5 mm")),
    Sketcher.Constraint("DistanceX", -1, 1, 1, 3, Q("18.25 mm")),
])
pocket12 = body.newObject("PartDesign::Pocket", "Pocket011")
pocket12.Profile = sketch20
pocket12.Length = 5
pocket12.Reversed = True
doc.recompute()

fillet = body.newObject("PartDesign::Fillet", "Fillet")
fillet.Base = (pocket12, edges_at(pocket12, [(0, 0, 10.25), (95, 0, 10.25), (95, 48, 10.25)]))
fillet.Radius = 2
doc.recompute()

fillet2 = body.newObject("PartDesign::Fillet", "Fillet001")
fillet2.Base = (fillet, edges_at(fillet, [(0, 48, 10.25)]))
fillet2.Radius = 1.95
doc.recompute()

chamfer = body.newObject("PartDesign::Chamfer", "Chamfer")
chamfer.Base = (fillet2, edges_at(fillet2, [
    (30.25, 27.925, 0),
    (32.75, 30.425, 0),
    (30.25, 32.925, 0),
    (27.75, 30.425, 0),
]))
chamfer.Size = 2
doc.recompute()

fillet3 = body.newObject("PartDesign::Fillet", "Fillet002")
fillet3.Base = (chamfer, edges_at(chamfer, [(47.475, 48, 0)]))
fillet3.Radius = 1
doc.recompute()

chamfer2 = body.newObject("PartDesign::Chamfer", "Chamfer001")
chamfer2.Base = (fillet3, edges_at(fillet3, [(95, 33.4, 17)]))
chamfer2.Size = 1.2
doc.recompute()

chamfer3 = body.newObject("PartDesign::Chamfer", "Chamfer002")
chamfer3.Base = (chamfer2, edges_at(chamfer2, [(13.4, 0, 17)]))
chamfer3.Size = 1.2
doc.recompute()

fillet4 = body.newObject("PartDesign::Fillet", "Fillet003")
fillet4.Base = (chamfer3, edges_at(chamfer3, [
    (6.5, 43.3, 3.25),
    (16.5, 43.3, 3.25),
    (22, 43.3, 3.25),
    (22, 39.6, 3.25),
]))
fillet4.Radius = 1
doc.recompute()

fillet5 = body.newObject("PartDesign::Fillet", "Fillet004")
fillet5.Base = (fillet4, edges_at(fillet4, [
    (22, 41.6, 3.25),
    (37.5, 36.85, 5.65),
    (27.6, 40.6, 10.5),
    (26, 17.5, 9.5),
    (26, 5.5, 9.5),
    (91, 17.5, 9.5),
    (91, 5.5, 9.5),
    (23, 17.5, 9.5),
    (23, 5.5, 9.5),
    (22.5, 13, 6),
    (58.5, 21, 17),
    (26, 19.25, 17),
    (23, 20.75, 17),
    (23, 20.75, 17),
    (58, 24, 17),
    (23, 3.75, 17),
    (24.5, 5.5, 17),
    (26, 3.75, 17),
    (91, 19.25, 17),
    (91, 3.75, 17),
    (92, 5.5, 17),
]))
fillet5.Radius = 0.9

# Sketch on XY plane
sketch21 = body.newObject("Sketcher::SketchObject", "Sketch020")
sketch21.AttachmentSupport = (doc.getObject("XY_Plane"), [""])
sketch21.MapMode = "FlatFace"
sketch21.AttachmentOffset = App.Placement(Vector(0, 0, 4.5), App.Rotation())
sketch21.addGeometry([
    Part.LineSegment(Vector(2, 37.85, 0), Vector(2, 36.85, 0)),
    Part.LineSegment(Vector(2, 36.85, 0), Vector(5, 36.85, 0)),
    Part.LineSegment(Vector(5, 36.85, 0), Vector(5, 37.85, 0)),
    Part.LineSegment(Vector(5, 37.85, 0), Vector(2, 37.85, 0)),
], False)
sketch21.addConstraint([
    Sketcher.Constraint("Coincident", 0, 2, 1, 1),
    Sketcher.Constraint("Coincident", 1, 2, 2, 1),
    Sketcher.Constraint("Coincident", 2, 2, 3, 1),
    Sketcher.Constraint("Coincident", 3, 2, 0, 1),
    Sketcher.Constraint("Vertical", 0),
    Sketcher.Constraint("Horizontal", 1),
    Sketcher.Constraint("Vertical", 2),
    Sketcher.Constraint("Horizontal", 3),
    Sketcher.Constraint("DistanceX", 1, 1, 1, 2, Q("3 mm")),
    Sketcher.Constraint("DistanceY", 0, 2, 0, 1, Q("1 mm")),
    Sketcher.Constraint("DistanceX", -1, 1, 0, 2, Q("2 mm")),
    Sketcher.Constraint("DistanceY", -1, 1, 0, 2, Q("36.85 mm")),
])
pocket13 = body.newObject("PartDesign::Pocket", "Pocket012")
pocket13.Profile = sketch21
pocket13.Length = 2.5

# Sketch on YZ plane
sketch22 = body.newObject("Sketcher::SketchObject", "Sketch021")
sketch22.AttachmentSupport = (doc.getObject("YZ_Plane"), [""])
sketch22.MapMode = "FlatFace"
sketch22.AttachmentOffset = App.Placement(Vector(0, 0, 30), App.Rotation())
sketch22.addGeometry([
    Part.LineSegment(Vector(46, 14, 0), Vector(46, 7, 0)),
    Part.LineSegment(Vector(46, 7, 0), Vector(41, 7, 0)),
    Part.LineSegment(Vector(41, 7, 0), Vector(41, 14, 0)),
    Part.LineSegment(Vector(41, 14, 0), Vector(46, 14, 0)),
], False)
sketch22.addConstraint([
    Sketcher.Constraint("Coincident", 0, 2, 1, 1),
    Sketcher.Constraint("Coincident", 1, 2, 2, 1),
    Sketcher.Constraint("Coincident", 2, 2, 3, 1),
    Sketcher.Constraint("Coincident", 3, 2, 0, 1),
    Sketcher.Constraint("Vertical", 0),
    Sketcher.Constraint("Horizontal", 1),
    Sketcher.Constraint("Vertical", 2),
    Sketcher.Constraint("Horizontal", 3),
    Sketcher.Constraint("DistanceX", 1, 2, 1, 1, Q("5 mm")),
    Sketcher.Constraint("DistanceY", 0, 2, 0, 1, Q("7 mm")),
    Sketcher.Constraint("DistanceX", -1, 1, 0, 2, Q("46 mm")),
    Sketcher.Constraint("DistanceY", -1, 1, 0, 2, Q("7 mm")),
])
pocket14 = body.newObject("PartDesign::Pocket", "Pocket013")
pocket14.Profile = sketch22
pocket14.Length = 5
pocket14.Reversed = True

doc.recompute()
